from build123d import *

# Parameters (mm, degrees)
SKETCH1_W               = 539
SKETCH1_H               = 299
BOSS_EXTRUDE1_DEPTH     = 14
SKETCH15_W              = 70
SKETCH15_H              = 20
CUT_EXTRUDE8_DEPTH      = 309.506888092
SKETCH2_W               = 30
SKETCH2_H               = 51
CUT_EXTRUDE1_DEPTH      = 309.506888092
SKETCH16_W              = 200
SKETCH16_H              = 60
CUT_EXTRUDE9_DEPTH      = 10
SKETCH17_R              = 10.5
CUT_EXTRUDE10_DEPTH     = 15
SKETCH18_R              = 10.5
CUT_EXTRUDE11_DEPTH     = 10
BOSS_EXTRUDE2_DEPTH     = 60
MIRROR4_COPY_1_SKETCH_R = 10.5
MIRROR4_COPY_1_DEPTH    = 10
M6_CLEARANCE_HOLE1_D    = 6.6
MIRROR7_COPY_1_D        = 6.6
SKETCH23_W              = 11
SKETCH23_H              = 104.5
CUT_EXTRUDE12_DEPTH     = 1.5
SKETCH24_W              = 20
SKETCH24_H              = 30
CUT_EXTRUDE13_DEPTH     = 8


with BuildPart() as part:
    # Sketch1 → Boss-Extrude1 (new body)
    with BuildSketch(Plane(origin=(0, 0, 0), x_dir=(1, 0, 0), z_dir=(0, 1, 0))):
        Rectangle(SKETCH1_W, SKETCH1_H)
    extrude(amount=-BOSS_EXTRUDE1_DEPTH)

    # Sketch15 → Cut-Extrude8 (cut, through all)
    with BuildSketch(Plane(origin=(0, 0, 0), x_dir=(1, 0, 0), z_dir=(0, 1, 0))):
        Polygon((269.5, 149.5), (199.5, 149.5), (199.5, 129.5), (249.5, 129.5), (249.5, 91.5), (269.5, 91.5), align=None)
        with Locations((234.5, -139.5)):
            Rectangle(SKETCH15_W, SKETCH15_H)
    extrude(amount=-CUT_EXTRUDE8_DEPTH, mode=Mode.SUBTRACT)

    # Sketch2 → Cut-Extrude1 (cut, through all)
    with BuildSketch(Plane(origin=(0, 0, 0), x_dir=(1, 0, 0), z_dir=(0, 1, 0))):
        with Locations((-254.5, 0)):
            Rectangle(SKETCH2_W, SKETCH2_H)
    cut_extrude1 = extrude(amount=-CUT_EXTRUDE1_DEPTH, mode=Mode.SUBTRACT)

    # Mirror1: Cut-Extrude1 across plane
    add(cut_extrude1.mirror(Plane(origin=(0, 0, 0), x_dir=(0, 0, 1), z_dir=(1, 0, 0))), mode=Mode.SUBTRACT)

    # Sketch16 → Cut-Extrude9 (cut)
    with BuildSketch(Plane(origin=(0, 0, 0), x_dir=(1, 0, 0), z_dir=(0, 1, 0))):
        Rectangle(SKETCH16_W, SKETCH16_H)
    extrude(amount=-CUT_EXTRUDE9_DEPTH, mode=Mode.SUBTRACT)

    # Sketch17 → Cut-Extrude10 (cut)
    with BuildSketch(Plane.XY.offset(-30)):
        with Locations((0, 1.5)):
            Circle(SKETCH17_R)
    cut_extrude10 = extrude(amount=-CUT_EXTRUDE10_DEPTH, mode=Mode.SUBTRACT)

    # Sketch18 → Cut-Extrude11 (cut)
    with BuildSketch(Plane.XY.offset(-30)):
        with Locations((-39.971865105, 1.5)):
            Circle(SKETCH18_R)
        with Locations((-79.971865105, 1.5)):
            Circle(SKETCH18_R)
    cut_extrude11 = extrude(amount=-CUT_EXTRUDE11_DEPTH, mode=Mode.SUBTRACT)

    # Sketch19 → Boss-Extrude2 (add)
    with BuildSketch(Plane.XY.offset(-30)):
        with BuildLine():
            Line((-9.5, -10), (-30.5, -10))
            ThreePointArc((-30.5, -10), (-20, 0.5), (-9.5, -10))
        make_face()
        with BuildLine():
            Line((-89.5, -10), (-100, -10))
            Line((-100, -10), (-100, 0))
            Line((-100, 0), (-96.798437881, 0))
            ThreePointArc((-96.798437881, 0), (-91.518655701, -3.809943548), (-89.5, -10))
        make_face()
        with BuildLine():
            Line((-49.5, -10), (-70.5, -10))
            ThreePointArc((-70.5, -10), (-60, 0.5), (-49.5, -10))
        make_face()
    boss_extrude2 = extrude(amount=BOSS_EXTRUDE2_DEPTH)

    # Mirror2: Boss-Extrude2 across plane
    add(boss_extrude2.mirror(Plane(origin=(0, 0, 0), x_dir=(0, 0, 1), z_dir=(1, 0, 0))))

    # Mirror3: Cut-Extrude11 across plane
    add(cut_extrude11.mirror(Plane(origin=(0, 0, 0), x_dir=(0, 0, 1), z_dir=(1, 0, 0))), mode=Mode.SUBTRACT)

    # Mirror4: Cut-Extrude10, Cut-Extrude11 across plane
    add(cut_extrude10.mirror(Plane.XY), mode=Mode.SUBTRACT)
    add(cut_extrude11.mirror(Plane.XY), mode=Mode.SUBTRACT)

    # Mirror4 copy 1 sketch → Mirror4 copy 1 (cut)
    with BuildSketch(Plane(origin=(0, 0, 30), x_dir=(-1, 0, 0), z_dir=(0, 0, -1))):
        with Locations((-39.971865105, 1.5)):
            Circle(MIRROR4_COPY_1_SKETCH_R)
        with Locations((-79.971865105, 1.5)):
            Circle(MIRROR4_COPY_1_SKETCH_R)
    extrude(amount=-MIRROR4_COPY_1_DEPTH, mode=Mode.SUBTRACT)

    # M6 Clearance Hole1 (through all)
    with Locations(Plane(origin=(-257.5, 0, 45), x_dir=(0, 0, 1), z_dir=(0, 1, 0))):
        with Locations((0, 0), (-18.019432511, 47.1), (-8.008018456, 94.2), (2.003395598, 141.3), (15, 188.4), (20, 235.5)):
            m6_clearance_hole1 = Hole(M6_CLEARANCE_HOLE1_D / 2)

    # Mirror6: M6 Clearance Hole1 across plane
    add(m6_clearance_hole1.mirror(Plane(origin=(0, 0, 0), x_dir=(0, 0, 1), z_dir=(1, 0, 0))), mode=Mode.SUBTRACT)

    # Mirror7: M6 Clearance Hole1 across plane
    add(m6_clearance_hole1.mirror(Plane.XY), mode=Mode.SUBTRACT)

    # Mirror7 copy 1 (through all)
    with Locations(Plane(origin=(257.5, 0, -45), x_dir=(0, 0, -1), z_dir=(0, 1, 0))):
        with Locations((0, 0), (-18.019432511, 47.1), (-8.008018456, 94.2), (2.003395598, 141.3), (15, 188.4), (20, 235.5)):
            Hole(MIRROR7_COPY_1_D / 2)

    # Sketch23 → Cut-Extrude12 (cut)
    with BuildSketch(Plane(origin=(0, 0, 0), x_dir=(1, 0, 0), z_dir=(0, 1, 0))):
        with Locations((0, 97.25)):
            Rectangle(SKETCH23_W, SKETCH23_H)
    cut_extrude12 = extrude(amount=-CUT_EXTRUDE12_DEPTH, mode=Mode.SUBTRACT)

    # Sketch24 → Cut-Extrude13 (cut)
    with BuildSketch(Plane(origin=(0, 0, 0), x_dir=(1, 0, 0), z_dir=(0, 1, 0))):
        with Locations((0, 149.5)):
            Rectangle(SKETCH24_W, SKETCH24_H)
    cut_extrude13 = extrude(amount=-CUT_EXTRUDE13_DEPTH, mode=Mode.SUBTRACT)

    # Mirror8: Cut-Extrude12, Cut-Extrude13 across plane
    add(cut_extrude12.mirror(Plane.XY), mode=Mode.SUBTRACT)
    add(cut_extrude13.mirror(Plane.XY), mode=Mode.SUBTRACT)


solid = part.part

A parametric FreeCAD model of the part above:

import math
import FreeCAD as App
import Part
import Sketcher

V = App.Vector
Q = App.Units.Quantity


def add_polygon(sketch, points):
    """Adds a closed chain of lines whose ends are joined by coincident constraints."""
    first, n = sketch.GeometryCount, len(points)
    for a, b in zip(points, points[1:] + points[:1]):
        sketch.addGeometry(Part.LineSegment(App.Vector(*a, 0), App.Vector(*b, 0)), False)
    for i in range(n):
        sketch.addConstraint(Sketcher.Constraint("Coincident", first + i, 2, first + (i + 1) % n, 1))

doc = App.newDocument("Part")
body = doc.addObject("PartDesign::Body", "Body")

sketch1 = body.newObject("Sketcher::SketchObject", "Sketch")
sketch1.AttachmentSupport = (doc.getObject("XZ_Plane"), [""])
sketch1.MapMode = "FlatFace"
add_polygon(sketch1, [(-270, -150), (-270, 150), (270, 150), (270, -150)])
sketch1.addConstraint([
    Sketcher.Constraint("Vertical", 0),
    Sketcher.Constraint("Horizontal", 1),
    Sketcher.Constraint("Vertical", 2),
    Sketcher.Constraint("Horizontal", 3),
    Sketcher.Constraint("Symmetric", 0, 2, 2, 2, -1, 1),
    Sketcher.Constraint("DistanceX", 1, 1, 1, 2, Q("539 mm")),
    Sketcher.Constraint("DistanceY", 0, 1, 0, 2, Q("299 mm")),
])
pad1 = body.newObject("PartDesign::Pad", "Pad")
pad1.Profile = sketch1
pad1.Length = 14

sketch2 = body.newObject("Sketcher::SketchObject", "Sketch001")
sketch2.AttachmentSupport = (doc.getObject("XZ_Plane"), [""])
sketch2.MapMode = "FlatFace"
add_polygon(sketch2, [(270, -150), (200, -150), (200, -130), (250, -130), (250, -92), (270, -92)])
add_polygon(sketch2, [(200, 130), (200, 150), (270, 150), (270, 130)])
sketch2.addConstraint([
    Sketcher.Constraint("Horizontal", 0),
    Sketcher.Constraint("Vertical", 1),
    Sketcher.Constraint("Horizontal", 2),
    Sketcher.Constraint("Vertical", 3),
    Sketcher.Constraint("Horizontal", 4),
    Sketcher.Constraint("Vertical", 5),
    Sketcher.Constraint("Vertical", 6),
    Sketcher.Constraint("Horizontal", 7),
    Sketcher.Constraint("Vertical", 8),
    Sketcher.Constraint("Horizontal", 9),
    Sketcher.Constraint("Symmetric", 0, 2, 6, 2, -1),
    Sketcher.Constraint("Vertical", 5, 2, 7, 2),
    Sketcher.Constraint("Equal", 4, 1),
    Sketcher.Constraint("Equal", 1, 6),
    Sketcher.Constraint("DistanceX", 0, 2, 0, 1, Q("70 mm")),
    Sketcher.Constraint("DistanceX", 2, 1, 2, 2, Q("50 mm")),
    Sketcher.Constraint("DistanceY", 3, 1, 3, 2, Q("38 mm")),
    Sketcher.Constraint("DistanceY", 3, 2, 6, 2, Q("241 mm")),
    Sketcher.Constraint("DistanceX", -1, 1, 0, 2, Q("199.5 mm")),
])
pocket1 = body.newObject("PartDesign::Pocket", "Pocket")
pocket1.Profile = sketch2
pocket1.Type = "ThroughAll"
pocket1.Reversed = True

sketch3 = body.newObject("Sketcher::SketchObject", "Sketch002")
sketch3.AttachmentSupport = (doc.getObject("XZ_Plane"), [""])
sketch3.MapMode = "FlatFace"
add_polygon(sketch3, [(-270, -26), (-270, 26), (-240, 26), (-240, -26)])
sketch3.addConstraint([
    Sketcher.Constraint("Vertical", 0),
    Sketcher.Constraint("Horizontal", 1),
    Sketcher.Constraint("Vertical", 2),
    Sketcher.Constraint("Horizontal", 3),
    Sketcher.Constraint("DistanceX", 1, 1, 1, 2, Q("30 mm")),
    Sketcher.Constraint("DistanceY", 0, 1, 0, 2, Q("51 mm")),
    Sketcher.Constraint("DistanceX", 0, 2, -1, 1, Q("269.5 mm")),
    Sketcher.Constraint("DistanceY", -1, 1, 0, 2, Q("25.5 mm")),
])
pocket2 = body.newObject("PartDesign::Pocket", "Pocket001")
pocket2.Profile = sketch3
pocket2.Type = "ThroughAll"
pocket2.Reversed = True
doc.recompute()

mirrored = body.newObject("PartDesign::Mirrored", "Mirrored")
mirrored.Originals = [pocket2]
mirrored.MirrorPlane = (doc.getObject("YZ_Plane"), [""])
body.Tip = mirrored

sketch4 = body.newObject("Sketcher::SketchObject", "Sketch003")
sketch4.AttachmentSupport = (doc.getObject("XZ_Plane"), [""])
sketch4.MapMode = "FlatFace"
add_polygon(sketch4, [(-100, -30), (-100, 30), (100, 30), (100, -30)])
sketch4.addConstraint([
    Sketcher.Constraint("Vertical", 0),
    Sketcher.Constraint("Horizontal", 1),
    Sketcher.Constraint("Vertical", 2),
    Sketcher.Constraint("Horizontal", 3),
    Sketcher.Constraint("Symmetric", 0, 2, 2, 2, -1, 1),
    Sketcher.Constraint("DistanceX", 1, 1, 1, 2, Q("200 mm")),
    Sketcher.Constraint("DistanceY", 0, 1, 0, 2, Q("60 mm")),
])
pocket3 = body.newObject("PartDesign::Pocket", "Pocket002")
pocket3.Profile = sketch4
pocket3.Length = 10
pocket3.Reversed = True

sketch5 = body.newObject("Sketcher::SketchObject", "Sketch004")
sketch5.AttachmentSupport = (doc.getObject("XY_Plane"), [""])
sketch5.MapMode = "FlatFace"
sketch5.AttachmentOffset = App.Placement(V(0, 0, -30), App.Rotation())
sketch5.addGeometry(Part.Circle(V(0, 2, 0), V(0, 0, 1), 10), False)
sketch5.addConstraint([
    Sketcher.Constraint("PointOnObject", 0, 3, -2),
    Sketcher.Constraint("Diameter", 0, Q("21 mm")),
    Sketcher.Constraint("DistanceY", -1, 1, 0, 3, Q("1.5 mm")),
])
pocket4 = body.newObject("PartDesign::Pocket", "Pocket003")
pocket4.Profile = sketch5
pocket4.Length = 15

sketch6 = body.newObject("Sketcher::SketchObject", "Sketch005")
sketch6.AttachmentSupport = (doc.getObject("XY_Plane"), [""])
sketch6.MapMode = "FlatFace"
sketch6.AttachmentOffset = App.Placement(V(0, 0, -30), App.Rotation())
sketch6.addGeometry([
    Part.Circle(V(-40, 2, 0), V(0, 0, 1), 10),
    Part.Circle(V(-80, 2, 0), V(0, 0, 1), 10),
], False)
sketch6.addConstraint([
    Sketcher.Constraint("Equal", 0, 1),
    Sketcher.Constraint("Horizontal", 0, 3, 1, 3),
    Sketcher.Constraint("Diameter", 0, Q("21 mm")),
    Sketcher.Constraint("DistanceX", 1, 3, 0, 3, Q("40 mm")),
    Sketcher.Constraint("DistanceY", -1, 1, 0, 3, Q("1.5 mm")),
    Sketcher.Constraint("DistanceX", 0, 3, -1, 1, Q("39.971865 mm")),
])
pocket5 = body.newObject("PartDesign::Pocket", "Pocket004")
pocket5.Profile = sketch6
pocket5.Length = 10

sketch7 = body.newObject("Sketcher::SketchObject", "Sketch006")
sketch7.AttachmentSupport = (doc.getObject("XY_Plane"), [""])
sketch7.MapMode = "FlatFace"
sketch7.AttachmentOffset = App.Placement(V(0, 0, -30), App.Rotation())
sketch7.addGeometry([
    Part.LineSegment(V(-30.5, -10, 0), V(-9.5, -10, 0)),
    Part.ArcOfCircle(Part.Circle(V(-20, -10, 0), V(0, 0, 1), 10.5), math.radians(0), math.radians(180)),
    Part.LineSegment(V(-100, -10, 0), V(-89.5, -10, 0)),
    Part.ArcOfCircle(Part.Circle(V(-100, -10, 0), V(0, 0, 1), 10.5), math.radians(0), math.radians(72)),
    Part.LineSegment(V(-96.8, 0, 0), V(-100, 0, 0)),
    Part.LineSegment(V(-100, 0, 0), V(-100, -10, 0)),
    Part.LineSegment(V(-70.5, -10, 0), V(-49.5, -10, 0)),
    Part.ArcOfCircle(Part.Circle(V(-60, -10, 0), V(0, 0, 1), 10.5), math.radians(0), math.radians(180)),
], False)
sketch7.addConstraint([
    Sketcher.Constraint("Coincident", 0, 1, 1, 2),
    Sketcher.Constraint("Coincident", 1, 1, 0, 2),
    Sketcher.Constraint("Coincident", 2, 2, 3, 1),
    Sketcher.Constraint("Coincident", 3, 2, 4, 1),
    Sketcher.Constraint("Coincident", 4, 2, 5, 1),
    Sketcher.Constraint("Coincident", 5, 2, 2, 1),
    Sketcher.Constraint("Coincident", 6, 1, 7, 2),
    Sketcher.Constraint("Coincident", 7, 1, 6, 2),
    Sketcher.Constraint("Horizontal", 0),
    Sketcher.Constraint("Horizontal", 2),
    Sketcher.Constraint("Horizontal", 4),
    Sketcher.Constraint("Vertical", 5),
    Sketcher.Constraint("Horizontal", 6),
    Sketcher.Constraint("Coincident", 5, 2, 3, 3),
    Sketcher.Constraint("Equal", 1, 3),
    Sketcher.Constraint("Equal", 3, 7),
    Sketcher.Constraint("PointOnObject", 3, 2, -1),
    Sketcher.Constraint("Horizontal", 1, 3, 3, 3),
    Sketcher.Constraint("Horizontal", 3, 3, 7, 3),
    Sketcher.Constraint("Horizontal", 7, 3, 0, 1),
    Sketcher.Constraint("Horizontal", 5, 2, 6, 1),
    Sketcher.Constraint("Radius", 1, Q("10.5 mm")),
    Sketcher.Constraint("DistanceY", 5, 2, 5, 1, Q("10 mm")),
    Sketcher.Constraint("DistanceX", 1, 3, -1, 1, Q("20 mm")),
    Sketcher.Constraint("DistanceX", 3, 3, -1, 1, Q("100 mm")),
    Sketcher.Constraint("DistanceX", 7, 3, -1, 1, Q("60 mm")),
])
pad2 = body.newObject("PartDesign::Pad", "Pad001")
pad2.Profile = sketch7
pad2.Length = 60
doc.recompute()

mirrored2 = body.newObject("PartDesign::Mirrored", "Mirrored001")
mirrored2.Originals = [pad2]
mirrored2.MirrorPlane = (doc.getObject("YZ_Plane"), [""])
body.Tip = mirrored2
doc.recompute()

mirrored3 = body.newObject("PartDesign::Mirrored", "Mirrored002")
mirrored3.Originals = [pocket5]
mirrored3.MirrorPlane = (doc.getObject("YZ_Plane"), [""])
body.Tip = mirrored3
doc.recompute()

mirrored4 = body.newObject("PartDesign::Mirrored", "Mirrored003")
mirrored4.Originals = [pocket4, pocket5]
mirrored4.MirrorPlane = (doc.getObject("XY_Plane"), [""])
body.Tip = mirrored4

sketch8 = body.newObject("Sketcher::SketchObject", "Sketch007")
sketch8.AttachmentSupport = (doc.getObject("XY_Plane"), [""])
sketch8.MapMode = "FlatFace"
sketch8.AttachmentOffset = App.Placement(V(0, 0, 30), App.Rotation())
sketch8.addGeometry([
    Part.Circle(V(40, 2, 0), V(0, 0, 1), 10),
    Part.Circle(V(80, 2, 0), V(0, 0, 1), 10),
], False)
sketch8.addConstraint([
    Sketcher.Constraint("Equal", 0, 1),
    Sketcher.Constraint("Horizontal", 0, 3, 1, 3),
    Sketcher.Constraint("Diameter", 0, Q("21 mm")),
    Sketcher.Constraint("DistanceX", 0, 3, 1, 3, Q("40 mm")),
    Sketcher.Constraint("DistanceY", -1, 1, 0, 3, Q("1.5 mm")),
    Sketcher.Constraint("DistanceX", -1, 1, 0, 3, Q("39.971865 mm")),
])
pocket6 = body.newObject("PartDesign::Pocket", "Pocket005")
pocket6.Profile = sketch8
pocket6.Length = 10
pocket6.Reversed = True

sketch9 = body.newObject("Sketcher::SketchObject", "Sketch008")
sketch9.AttachmentSupport = (doc.getObject("XZ_Plane"), [""])
sketch9.MapMode = "FlatFace"
sketch9.addGeometry([
    Part.Circle(V(-257.5, 45, 0), V(0, 0, 1), 3.3),
    Part.Circle(V(-210.4, 27, 0), V(0, 0, 1), 3.3),
    Part.Circle(V(-163.3, 37, 0), V(0, 0, 1), 3.3),
    Part.Circle(V(-116.2, 47, 0), V(0, 0, 1), 3.3),
    Part.Circle(V(-69.1, 60, 0), V(0, 0, 1), 3.3),
    Part.Circle(V(-22, 65, 0), V(0, 0, 1), 3.3),
], False)
sketch9.addConstraint([
    Sketcher.Constraint("Equal", 0, 1),
    Sketcher.Constraint("Equal", 1, 2),
    Sketcher.Constraint("Equal", 2, 3),
    Sketcher.Constraint("Equal", 3, 4),
    Sketcher.Constraint("Equal", 4, 5),
    Sketcher.Constraint("Diameter", 0, Q("6.6 mm")),
    Sketcher.Constraint("DistanceY", -1, 1, 0, 3, Q("45 mm")),
    Sketcher.Constraint("DistanceY", -1, 1, 4, 3, Q("60 mm")),
    Sketcher.Constraint("DistanceX", 5, 3, -1, 1, Q("22 mm")),
    Sketcher.Constraint("DistanceY", -1, 1, 5, 3, Q("65 mm")),
    Sketcher.Constraint("DistanceX", 0, 3, -1, 1, Q("257.5 mm")),
    Sketcher.Constraint("DistanceX", 1, 3, -1, 1, Q("210.4 mm")),
    Sketcher.Constraint("DistanceX", 2, 3, -1, 1, Q("163.3 mm")),
    Sketcher.Constraint("DistanceX", 3, 3, -1, 1, Q("116.2 mm")),
    Sketcher.Constraint("DistanceX", 4, 3, -1, 1, Q("69.1 mm")),
    Sketcher.Constraint("DistanceY", -1, 1, 2, 3, Q("36.991982 mm")),
    Sketcher.Constraint("DistanceY", 1, 3, 3, 3, Q("20.022828 mm")),
    Sketcher.Constraint("DistanceY", -1, 1, 1, 3, Q("26.980567 mm")),
])
doc.recompute()
hole = body.newObject("PartDesign::Hole", "Hole")
hole.Profile = sketch9
hole.ThreadType = "None"
hole.Diameter = 6.6
hole.DepthType = "ThroughAll"
hole.Reversed = True
doc.recompute()

mirrored5 = body.newObject("PartDesign::Mirrored", "Mirrored004")
mirrored5.Originals = [hole]
mirrored5.MirrorPlane = (doc.getObject("YZ_Plane"), [""])
body.Tip = mirrored5
doc.recompute()

mirrored6 = body.newObject("PartDesign::Mirrored", "Mirrored005")
mirrored6.Originals = [hole]
mirrored6.MirrorPlane = (doc.getObject("XY_Plane"), [""])
body.Tip = mirrored6

sketch10 = body.newObject("Sketcher::SketchObject", "Sketch009")
sketch10.AttachmentSupport = (doc.getObject("XZ_Plane"), [""])
sketch10.MapMode = "FlatFace"
sketch10.addGeometry([
    Part.Circle(V(257.5, -45, 0), V(0, 0, 1), 3.3),
    Part.Circle(V(210.4, -27, 0), V(0, 0, 1), 3.3),
    Part.Circle(V(163.3, -37, 0), V(0, 0, 1), 3.3),
    Part.Circle(V(116.2, -47, 0), V(0, 0, 1), 3.3),
    Part.Circle(V(69.1, -60, 0), V(0, 0, 1), 3.3),
    Part.Circle(V(22, -65, 0), V(0, 0, 1), 3.3),
], False)
sketch10.addConstraint([
    Sketcher.Constraint("Equal", 0, 1),
    Sketcher.Constraint("Equal", 1, 2),
    Sketcher.Constraint("Equal", 2, 3),
    Sketcher.Constraint("Equal", 3, 4),
    Sketcher.Constraint("Equal", 4, 5),
    Sketcher.Constraint("Diameter", 0, Q("6.6 mm")),
    Sketcher.Constraint("DistanceY", 0, 3, -1, 1, Q("45 mm")),
    Sketcher.Constraint("DistanceY", 4, 3, -1, 1, Q("60 mm")),
    Sketcher.Constraint("DistanceX", -1, 1, 5, 3, Q("22 mm")),
    Sketcher.Constraint("DistanceY", 5, 3, -1, 1, Q("65 mm")),
    Sketcher.Constraint("DistanceX", -1, 1, 0, 3, Q("257.5 mm")),
    Sketcher.Constraint("DistanceX", -1, 1, 1, 3, Q("210.4 mm")),
    Sketcher.Constraint("DistanceX", -1, 1, 2, 3, Q("163.3 mm")),
    Sketcher.Constraint("DistanceX", -1, 1, 3, 3, Q("116.2 mm")),
    Sketcher.Constraint("DistanceX", -1, 1, 4, 3, Q("69.1 mm")),
    Sketcher.Constraint("DistanceY", 2, 3, -1, 1, Q("36.991982 mm")),
    Sketcher.Constraint("DistanceY", 3, 3, 1, 3, Q("20.022828 mm")),
    Sketcher.Constraint("DistanceY", 1, 3, -1, 1, Q("26.980567 mm")),
])
doc.recompute()
hole2 = body.newObject("PartDesign::Hole", "Hole001")
hole2.Profile = sketch10
hole2.ThreadType = "None"
hole2.Diameter = 6.6
hole2.DepthType = "ThroughAll"
hole2.Reversed = True

sketch11 = body.newObject("Sketcher::SketchObject", "Sketch010")
sketch11.AttachmentSupport = (doc.getObject("XZ_Plane"), [""])
sketch11.MapMode = "FlatFace"
add_polygon(sketch11, [(-6, -150), (-6, -45), (6, -45), (6, -150)])
sketch11.addConstraint([
    Sketcher.Constraint("Vertical", 0),
    Sketcher.Constraint("Horizontal", 1),
    Sketcher.Constraint("Vertical", 2),
    Sketcher.Constraint("Horizontal", 3),
    Sketcher.Constraint("DistanceX", 1, 1, 1, 2, Q("11 mm")),
    Sketcher.Constraint("DistanceY", 0, 1, 0, 2, Q("104.5 mm")),
    Sketcher.Constraint("DistanceY", 0, 2, -1, 1, Q("45 mm")),
    Sketcher.Constraint("DistanceX", 0, 2, -1, 1, Q("5.5 mm")),
])
pocket7 = body.newObject("PartDesign::Pocket", "Pocket006")
pocket7.Profile = sketch11
pocket7.Length = 1.5
pocket7.Reversed = True

sketch12 = body.newObject("Sketcher::SketchObject", "Sketch011")
sketch12.AttachmentSupport = (doc.getObject("XZ_Plane"), [""])
sketch12.MapMode = "FlatFace"
add_polygon(sketch12, [(-10, -164), (-10, -134), (10, -134), (10, -164)])
sketch12.addConstraint([
    Sketcher.Constraint("Vertical", 0),
    Sketcher.Constraint("Horizontal", 1),
    Sketcher.Constraint("Vertical", 2),
    Sketcher.Constraint("Horizontal", 3),
    Sketcher.Constraint("DistanceX", 1, 1, 1, 2, Q("20 mm")),
    Sketcher.Constraint("DistanceY", 0, 1, 0, 2, Q("30 mm")),
    Sketcher.Constraint("DistanceX", 0, 2, -1, 1, Q("10 mm")),
    Sketcher.Constraint("DistanceY", 0, 2, -1, 1, Q("134.5 mm")),
])
pocket8 = body.newObject("PartDesign::Pocket", "Pocket007")
pocket8.Profile = sketch12
pocket8.Length = 8
pocket8.Reversed = True
doc.recompute()

mirrored7 = body.newObject("PartDesign::Mirrored", "Mirrored006")
mirrored7.Originals = [pocket7, pocket8]
mirrored7.MirrorPlane = (doc.getObject("XY_Plane"), [""])
body.Tip = mirrored7

doc.recompute()
